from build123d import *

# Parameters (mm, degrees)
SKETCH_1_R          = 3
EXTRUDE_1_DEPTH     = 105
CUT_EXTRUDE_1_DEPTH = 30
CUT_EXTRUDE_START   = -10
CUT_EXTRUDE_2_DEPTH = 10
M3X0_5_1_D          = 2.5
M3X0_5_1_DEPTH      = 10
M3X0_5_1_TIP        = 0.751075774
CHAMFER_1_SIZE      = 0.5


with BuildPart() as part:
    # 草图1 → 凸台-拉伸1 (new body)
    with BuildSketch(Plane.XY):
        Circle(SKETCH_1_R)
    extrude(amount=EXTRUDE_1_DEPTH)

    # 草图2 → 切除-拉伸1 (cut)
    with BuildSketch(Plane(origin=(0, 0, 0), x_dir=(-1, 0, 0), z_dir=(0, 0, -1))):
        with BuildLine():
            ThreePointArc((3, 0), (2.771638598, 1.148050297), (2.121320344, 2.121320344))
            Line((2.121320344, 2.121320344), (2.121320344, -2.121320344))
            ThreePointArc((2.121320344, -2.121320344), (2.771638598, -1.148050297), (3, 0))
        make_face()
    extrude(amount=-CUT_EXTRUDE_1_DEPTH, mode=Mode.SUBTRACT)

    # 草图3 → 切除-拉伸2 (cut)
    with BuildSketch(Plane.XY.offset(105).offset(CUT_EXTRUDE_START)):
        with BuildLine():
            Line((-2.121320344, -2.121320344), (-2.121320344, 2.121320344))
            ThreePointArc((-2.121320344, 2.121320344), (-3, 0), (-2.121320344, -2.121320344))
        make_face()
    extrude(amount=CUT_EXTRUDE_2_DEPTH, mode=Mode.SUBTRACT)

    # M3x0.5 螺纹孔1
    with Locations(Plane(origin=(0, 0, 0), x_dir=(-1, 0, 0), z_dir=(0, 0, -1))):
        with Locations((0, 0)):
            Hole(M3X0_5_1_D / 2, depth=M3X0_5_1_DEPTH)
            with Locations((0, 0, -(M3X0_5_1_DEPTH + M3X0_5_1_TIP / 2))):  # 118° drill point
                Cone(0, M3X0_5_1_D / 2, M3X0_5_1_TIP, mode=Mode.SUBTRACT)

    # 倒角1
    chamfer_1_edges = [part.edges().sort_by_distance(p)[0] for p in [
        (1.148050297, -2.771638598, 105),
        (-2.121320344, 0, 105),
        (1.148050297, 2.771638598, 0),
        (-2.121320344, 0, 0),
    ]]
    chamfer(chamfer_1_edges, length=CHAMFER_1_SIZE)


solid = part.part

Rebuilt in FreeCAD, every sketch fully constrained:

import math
import FreeCAD as App
import Part
import Sketcher
from FreeCAD import Vector


def edges_at(feature, points):
    """Names of the edges that pass closest to the given points."""
    edges = feature.Shape.Edges
    near = lambda p: min(range(len(edges)), key=lambda i: edges[i].distToShape(Part.Vertex(*p))[0])
    return sorted({f"Edge{near(p) + 1}" for p in points})

doc = App.newDocument("Part")
body = doc.addObject("PartDesign::Body", "Body")

sketch1 = doc.addObject("Sketcher::SketchObject", "Sketch")
body.addObject(sketch1)
sketch1.AttachmentSupport = (doc.XY_Plane, [""])
sketch1.MapMode = "FlatFace"
sketch1.addGeometry(Part.Circle(Vector(0, 0, 0), Vector(0, 0, 1), 3), False)
sketch1.addConstraint(Sketcher.Constraint("Coincident", 0, 3, -1, 1))
sketch1.addConstraint(Sketcher.Constraint("Diameter", 0, 6.0))
pad1 = doc.addObject("PartDesign::Pad", "Pad")
body.addObject(pad1)
pad1.Profile = sketch1
pad1.Length = 105

sketch2 = doc.addObject("Sketcher::SketchObject", "Sketch001")
body.addObject(sketch2)
sketch2.AttachmentSupport = (doc.XY_Plane, [""])
sketch2.MapMode = "FlatFace"
sketch2.addGeometry(Part.ArcOfCircle(Part.Circle(Vector(0, 0, 0), Vector(0, 0, 1), 3), math.radians(135), math.radians(180)), False)
sketch2.addGeometry(Part.LineSegment(Vector(-2.1, 2.1, 0), Vector(-2.1, -2.1, 0)), False)
sketch2.addGeometry(Part.ArcOfCircle(Part.Circle(Vector(0, 0, 0), Vector(0, 0, 1), 3), math.radians(180), math.radians(225)), False)
sketch2.addConstraint(Sketcher.Constraint("Coincident", 0, 1, 1, 1))
sketch2.addConstraint(Sketcher.Constraint("Coincident", 1, 2, 2, 2))
sketch2.addConstraint(Sketcher.Constraint("Tangent", 2, 1, 0, 2))
sketch2.addConstraint(Sketcher.Constraint("Vertical", 1))
sketch2.addConstraint(Sketcher.Constraint("Coincident", 0, 3, -1, 1))
sketch2.addConstraint(Sketcher.Constraint("Equal", 0, 2))
sketch2.addConstraint(Sketcher.Constraint("PointOnObject", 2, 1, -1))
sketch2.addConstraint(Sketcher.Constraint("Radius", 0, 3.0))
sketch2.addConstraint(Sketcher.Constraint("DistanceY", 1, 2, 1, 1, 4.242641))
pocket1 = doc.addObject("PartDesign::Pocket", "Pocket")
body.addObject(pocket1)
pocket1.Profile = sketch2
pocket1.Length = 30
pocket1.Reversed = True

sketch3 = doc.addObject("Sketcher::SketchObject", "Sketch002")
body.addObject(sketch3)
sketch3.AttachmentSupport = (doc.XY_Plane, [""])
sketch3.MapMode = "FlatFace"
sketch3.AttachmentOffset = App.Placement(Vector(0, 0, 95), App.Rotation())
sketch3.addGeometry(Part.LineSegment(Vector(-2.1, -2.1, 0), Vector(-2.1, 2.1, 0)), False)
sketch3.addGeometry(Part.ArcOfCircle(Part.Circle(Vector(0, 0, 0), Vector(0, 0, 1), 3), math.radians(135), math.radians(225)), False)
sketch3.addConstraint(Sketcher.Constraint("Coincident", 0, 1, 1, 2))
sketch3.addConstraint(Sketcher.Constraint("Coincident", 1, 1, 0, 2))
sketch3.addConstraint(Sketcher.Constraint("Vertical", 0))
sketch3.addConstraint(Sketcher.Constraint("Coincident", 1, 3, -1, 1))
sketch3.addConstraint(Sketcher.Constraint("Radius", 1, 3.0))
sketch3.addConstraint(Sketcher.Constraint("DistanceY", 0, 1, 0, 2, 4.242641))
pocket2 = doc.addObject("PartDesign::Pocket", "Pocket001")
body.addObject(pocket2)
pocket2.Profile = sketch3
pocket2.Length = 10
pocket2.Reversed = True

sketch4 = doc.addObject("Sketcher::SketchObject", "Sketch003")
body.addObject(sketch4)
sketch4.AttachmentSupport = (doc.XY_Plane, [""])
sketch4.MapMode = "FlatFace"
sketch4.addGeometry(Part.Circle(Vector(0, 0, 0), Vector(0, 0, 1), 1.2), False)
sketch4.addConstraint(Sketcher.Constraint("Coincident", 0, 3, -1, 1))
sketch4.addConstraint(Sketcher.Constraint("Diameter", 0, 2.5))
doc.recompute()
hole = doc.addObject("PartDesign::Hole", "Hole")
body.addObject(hole)
hole.Profile = sketch4
hole.ThreadType = "None"
hole.Diameter = 2.5
hole.DepthType = "Dimension"
hole.Depth = 10
hole.DrillPoint = "Angled"
hole.DrillPointAngle = 118
hole.Reversed = True
doc.recompute()

chamfer = doc.addObject("PartDesign::Chamfer", "Chamfer")
body.addObject(chamfer)
chamfer.Base = (hole, edges_at(hole, [
    (1.148, -2.772, 105),
    (-2.121, 0, 105),
    (1.148, 2.772, 0),
    (-2.121, 0, 0),
]))
chamfer.Size = 0.5

doc.recompute()
